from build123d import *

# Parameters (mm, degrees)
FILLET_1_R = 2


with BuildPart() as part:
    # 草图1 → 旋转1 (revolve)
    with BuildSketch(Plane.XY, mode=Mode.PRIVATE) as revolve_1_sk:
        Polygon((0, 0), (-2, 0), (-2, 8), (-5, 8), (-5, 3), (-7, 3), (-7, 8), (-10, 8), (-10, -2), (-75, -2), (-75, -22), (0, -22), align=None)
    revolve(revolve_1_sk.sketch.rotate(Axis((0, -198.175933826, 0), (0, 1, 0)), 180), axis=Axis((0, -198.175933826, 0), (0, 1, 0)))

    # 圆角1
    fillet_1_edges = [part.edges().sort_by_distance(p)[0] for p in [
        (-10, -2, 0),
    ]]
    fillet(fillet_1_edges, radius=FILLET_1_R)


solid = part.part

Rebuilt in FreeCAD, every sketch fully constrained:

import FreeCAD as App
import Part
import Sketcher
Q = App.Units.Quantity


def edges_at(feature, points):
    """Names of the edges that pass closest to the given points."""
    edges = feature.Shape.Edges
    near = lambda p: min(range(len(edges)), key=lambda i: edges[i].distToShape(Part.Vertex(*p))[0])
    return sorted({f"Edge{near(p) + 1}" for p in points})


def add_polygon(sketch, points):
    """Adds a closed chain of lines whose ends are joined by coincident constraints."""
    first, n = sketch.GeometryCount, len(points)
    for a, b in zip(points, points[1:] + points[:1]):
        sketch.addGeometry(Part.LineSegment(App.Vector(*a, 0), App.Vector(*b, 0)), False)
    for i in range(n):
        sketch.addConstraint(Sketcher.Constraint("Coincident", first + i, 2, first + (i + 1) % n, 1))

doc = App.newDocument("Part")
body = doc.addObject("PartDesign::Body", "Body")

# Sketch on XY plane
sketch1 = body.newObject("Sketcher::SketchObject", "Sketch")
sketch1.AttachmentSupport = (doc.getObject("XY_Plane"), [""])
sketch1.MapMode = "FlatFace"
add_polygon(sketch1, [(0, 0), (-2, 0), (-2, 8), (-5, 8), (-5, 3), (-7, 3), (-7, 8), (-10, 8), (-10, -2), (-75, -2), (-75, -22), (0, -22)])  # lines 0-11
sketch1.addConstraint([
    Sketcher.Constraint("Horizontal", 0),
    Sketcher.Constraint("Vertical", 1),
    Sketcher.Constraint("Horizontal", 2),
    Sketcher.Constraint("Vertical", 3),
    Sketcher.Constraint("Horizontal", 4),
    Sketcher.Constraint("Vertical", 5),
    Sketcher.Constraint("Horizontal", 6),
    Sketcher.Constraint("Vertical", 7),
    Sketcher.Constraint("Horizontal", 8),
    Sketcher.Constraint("Vertical", 9),
    Sketcher.Constraint("Horizontal", 10),
    Sketcher.Constraint("Vertical", 11),
    Sketcher.Constraint("Coincident", 11, 2, -1, 1),
    Sketcher.Constraint("Horizontal", 2, 2, 5, 2),
    Sketcher.Constraint("Equal", 0, 4),
    Sketcher.Constraint("Equal", 2, 6),
    Sketcher.Constraint("DistanceX", 0, 2, 0, 1, Q("2 mm")),
    Sketcher.Constraint("DistanceX", 2, 2, 2, 1, Q("3 mm")),
    Sketcher.Constraint("DistanceX", 8, 2, 8, 1, Q("65 mm")),
    Sketcher.Constraint("DistanceY", 1, 1, 1, 2, Q("8 mm")),
    Sketcher.Constraint("DistanceY", 3, 2, 3, 1, Q("5 mm")),
    Sketcher.Constraint("DistanceY", 7, 2, 7, 1, Q("10 mm")),
    Sketcher.Constraint("DistanceY", 9, 2, 9, 1, Q("20 mm")),
])
revolution = body.newObject("PartDesign::Revolution", "Revolution")
revolution.Profile = sketch1
revolution.ReferenceAxis = (sketch1, ["V_Axis"])
revolution.Angle = 360
doc.recompute()

fillet = body.newObject("PartDesign::Fillet", "Fillet")
fillet.Base = (revolution, edges_at(revolution, [(-10, -2, 0)]))
fillet.Radius = 2

doc.recompute()
